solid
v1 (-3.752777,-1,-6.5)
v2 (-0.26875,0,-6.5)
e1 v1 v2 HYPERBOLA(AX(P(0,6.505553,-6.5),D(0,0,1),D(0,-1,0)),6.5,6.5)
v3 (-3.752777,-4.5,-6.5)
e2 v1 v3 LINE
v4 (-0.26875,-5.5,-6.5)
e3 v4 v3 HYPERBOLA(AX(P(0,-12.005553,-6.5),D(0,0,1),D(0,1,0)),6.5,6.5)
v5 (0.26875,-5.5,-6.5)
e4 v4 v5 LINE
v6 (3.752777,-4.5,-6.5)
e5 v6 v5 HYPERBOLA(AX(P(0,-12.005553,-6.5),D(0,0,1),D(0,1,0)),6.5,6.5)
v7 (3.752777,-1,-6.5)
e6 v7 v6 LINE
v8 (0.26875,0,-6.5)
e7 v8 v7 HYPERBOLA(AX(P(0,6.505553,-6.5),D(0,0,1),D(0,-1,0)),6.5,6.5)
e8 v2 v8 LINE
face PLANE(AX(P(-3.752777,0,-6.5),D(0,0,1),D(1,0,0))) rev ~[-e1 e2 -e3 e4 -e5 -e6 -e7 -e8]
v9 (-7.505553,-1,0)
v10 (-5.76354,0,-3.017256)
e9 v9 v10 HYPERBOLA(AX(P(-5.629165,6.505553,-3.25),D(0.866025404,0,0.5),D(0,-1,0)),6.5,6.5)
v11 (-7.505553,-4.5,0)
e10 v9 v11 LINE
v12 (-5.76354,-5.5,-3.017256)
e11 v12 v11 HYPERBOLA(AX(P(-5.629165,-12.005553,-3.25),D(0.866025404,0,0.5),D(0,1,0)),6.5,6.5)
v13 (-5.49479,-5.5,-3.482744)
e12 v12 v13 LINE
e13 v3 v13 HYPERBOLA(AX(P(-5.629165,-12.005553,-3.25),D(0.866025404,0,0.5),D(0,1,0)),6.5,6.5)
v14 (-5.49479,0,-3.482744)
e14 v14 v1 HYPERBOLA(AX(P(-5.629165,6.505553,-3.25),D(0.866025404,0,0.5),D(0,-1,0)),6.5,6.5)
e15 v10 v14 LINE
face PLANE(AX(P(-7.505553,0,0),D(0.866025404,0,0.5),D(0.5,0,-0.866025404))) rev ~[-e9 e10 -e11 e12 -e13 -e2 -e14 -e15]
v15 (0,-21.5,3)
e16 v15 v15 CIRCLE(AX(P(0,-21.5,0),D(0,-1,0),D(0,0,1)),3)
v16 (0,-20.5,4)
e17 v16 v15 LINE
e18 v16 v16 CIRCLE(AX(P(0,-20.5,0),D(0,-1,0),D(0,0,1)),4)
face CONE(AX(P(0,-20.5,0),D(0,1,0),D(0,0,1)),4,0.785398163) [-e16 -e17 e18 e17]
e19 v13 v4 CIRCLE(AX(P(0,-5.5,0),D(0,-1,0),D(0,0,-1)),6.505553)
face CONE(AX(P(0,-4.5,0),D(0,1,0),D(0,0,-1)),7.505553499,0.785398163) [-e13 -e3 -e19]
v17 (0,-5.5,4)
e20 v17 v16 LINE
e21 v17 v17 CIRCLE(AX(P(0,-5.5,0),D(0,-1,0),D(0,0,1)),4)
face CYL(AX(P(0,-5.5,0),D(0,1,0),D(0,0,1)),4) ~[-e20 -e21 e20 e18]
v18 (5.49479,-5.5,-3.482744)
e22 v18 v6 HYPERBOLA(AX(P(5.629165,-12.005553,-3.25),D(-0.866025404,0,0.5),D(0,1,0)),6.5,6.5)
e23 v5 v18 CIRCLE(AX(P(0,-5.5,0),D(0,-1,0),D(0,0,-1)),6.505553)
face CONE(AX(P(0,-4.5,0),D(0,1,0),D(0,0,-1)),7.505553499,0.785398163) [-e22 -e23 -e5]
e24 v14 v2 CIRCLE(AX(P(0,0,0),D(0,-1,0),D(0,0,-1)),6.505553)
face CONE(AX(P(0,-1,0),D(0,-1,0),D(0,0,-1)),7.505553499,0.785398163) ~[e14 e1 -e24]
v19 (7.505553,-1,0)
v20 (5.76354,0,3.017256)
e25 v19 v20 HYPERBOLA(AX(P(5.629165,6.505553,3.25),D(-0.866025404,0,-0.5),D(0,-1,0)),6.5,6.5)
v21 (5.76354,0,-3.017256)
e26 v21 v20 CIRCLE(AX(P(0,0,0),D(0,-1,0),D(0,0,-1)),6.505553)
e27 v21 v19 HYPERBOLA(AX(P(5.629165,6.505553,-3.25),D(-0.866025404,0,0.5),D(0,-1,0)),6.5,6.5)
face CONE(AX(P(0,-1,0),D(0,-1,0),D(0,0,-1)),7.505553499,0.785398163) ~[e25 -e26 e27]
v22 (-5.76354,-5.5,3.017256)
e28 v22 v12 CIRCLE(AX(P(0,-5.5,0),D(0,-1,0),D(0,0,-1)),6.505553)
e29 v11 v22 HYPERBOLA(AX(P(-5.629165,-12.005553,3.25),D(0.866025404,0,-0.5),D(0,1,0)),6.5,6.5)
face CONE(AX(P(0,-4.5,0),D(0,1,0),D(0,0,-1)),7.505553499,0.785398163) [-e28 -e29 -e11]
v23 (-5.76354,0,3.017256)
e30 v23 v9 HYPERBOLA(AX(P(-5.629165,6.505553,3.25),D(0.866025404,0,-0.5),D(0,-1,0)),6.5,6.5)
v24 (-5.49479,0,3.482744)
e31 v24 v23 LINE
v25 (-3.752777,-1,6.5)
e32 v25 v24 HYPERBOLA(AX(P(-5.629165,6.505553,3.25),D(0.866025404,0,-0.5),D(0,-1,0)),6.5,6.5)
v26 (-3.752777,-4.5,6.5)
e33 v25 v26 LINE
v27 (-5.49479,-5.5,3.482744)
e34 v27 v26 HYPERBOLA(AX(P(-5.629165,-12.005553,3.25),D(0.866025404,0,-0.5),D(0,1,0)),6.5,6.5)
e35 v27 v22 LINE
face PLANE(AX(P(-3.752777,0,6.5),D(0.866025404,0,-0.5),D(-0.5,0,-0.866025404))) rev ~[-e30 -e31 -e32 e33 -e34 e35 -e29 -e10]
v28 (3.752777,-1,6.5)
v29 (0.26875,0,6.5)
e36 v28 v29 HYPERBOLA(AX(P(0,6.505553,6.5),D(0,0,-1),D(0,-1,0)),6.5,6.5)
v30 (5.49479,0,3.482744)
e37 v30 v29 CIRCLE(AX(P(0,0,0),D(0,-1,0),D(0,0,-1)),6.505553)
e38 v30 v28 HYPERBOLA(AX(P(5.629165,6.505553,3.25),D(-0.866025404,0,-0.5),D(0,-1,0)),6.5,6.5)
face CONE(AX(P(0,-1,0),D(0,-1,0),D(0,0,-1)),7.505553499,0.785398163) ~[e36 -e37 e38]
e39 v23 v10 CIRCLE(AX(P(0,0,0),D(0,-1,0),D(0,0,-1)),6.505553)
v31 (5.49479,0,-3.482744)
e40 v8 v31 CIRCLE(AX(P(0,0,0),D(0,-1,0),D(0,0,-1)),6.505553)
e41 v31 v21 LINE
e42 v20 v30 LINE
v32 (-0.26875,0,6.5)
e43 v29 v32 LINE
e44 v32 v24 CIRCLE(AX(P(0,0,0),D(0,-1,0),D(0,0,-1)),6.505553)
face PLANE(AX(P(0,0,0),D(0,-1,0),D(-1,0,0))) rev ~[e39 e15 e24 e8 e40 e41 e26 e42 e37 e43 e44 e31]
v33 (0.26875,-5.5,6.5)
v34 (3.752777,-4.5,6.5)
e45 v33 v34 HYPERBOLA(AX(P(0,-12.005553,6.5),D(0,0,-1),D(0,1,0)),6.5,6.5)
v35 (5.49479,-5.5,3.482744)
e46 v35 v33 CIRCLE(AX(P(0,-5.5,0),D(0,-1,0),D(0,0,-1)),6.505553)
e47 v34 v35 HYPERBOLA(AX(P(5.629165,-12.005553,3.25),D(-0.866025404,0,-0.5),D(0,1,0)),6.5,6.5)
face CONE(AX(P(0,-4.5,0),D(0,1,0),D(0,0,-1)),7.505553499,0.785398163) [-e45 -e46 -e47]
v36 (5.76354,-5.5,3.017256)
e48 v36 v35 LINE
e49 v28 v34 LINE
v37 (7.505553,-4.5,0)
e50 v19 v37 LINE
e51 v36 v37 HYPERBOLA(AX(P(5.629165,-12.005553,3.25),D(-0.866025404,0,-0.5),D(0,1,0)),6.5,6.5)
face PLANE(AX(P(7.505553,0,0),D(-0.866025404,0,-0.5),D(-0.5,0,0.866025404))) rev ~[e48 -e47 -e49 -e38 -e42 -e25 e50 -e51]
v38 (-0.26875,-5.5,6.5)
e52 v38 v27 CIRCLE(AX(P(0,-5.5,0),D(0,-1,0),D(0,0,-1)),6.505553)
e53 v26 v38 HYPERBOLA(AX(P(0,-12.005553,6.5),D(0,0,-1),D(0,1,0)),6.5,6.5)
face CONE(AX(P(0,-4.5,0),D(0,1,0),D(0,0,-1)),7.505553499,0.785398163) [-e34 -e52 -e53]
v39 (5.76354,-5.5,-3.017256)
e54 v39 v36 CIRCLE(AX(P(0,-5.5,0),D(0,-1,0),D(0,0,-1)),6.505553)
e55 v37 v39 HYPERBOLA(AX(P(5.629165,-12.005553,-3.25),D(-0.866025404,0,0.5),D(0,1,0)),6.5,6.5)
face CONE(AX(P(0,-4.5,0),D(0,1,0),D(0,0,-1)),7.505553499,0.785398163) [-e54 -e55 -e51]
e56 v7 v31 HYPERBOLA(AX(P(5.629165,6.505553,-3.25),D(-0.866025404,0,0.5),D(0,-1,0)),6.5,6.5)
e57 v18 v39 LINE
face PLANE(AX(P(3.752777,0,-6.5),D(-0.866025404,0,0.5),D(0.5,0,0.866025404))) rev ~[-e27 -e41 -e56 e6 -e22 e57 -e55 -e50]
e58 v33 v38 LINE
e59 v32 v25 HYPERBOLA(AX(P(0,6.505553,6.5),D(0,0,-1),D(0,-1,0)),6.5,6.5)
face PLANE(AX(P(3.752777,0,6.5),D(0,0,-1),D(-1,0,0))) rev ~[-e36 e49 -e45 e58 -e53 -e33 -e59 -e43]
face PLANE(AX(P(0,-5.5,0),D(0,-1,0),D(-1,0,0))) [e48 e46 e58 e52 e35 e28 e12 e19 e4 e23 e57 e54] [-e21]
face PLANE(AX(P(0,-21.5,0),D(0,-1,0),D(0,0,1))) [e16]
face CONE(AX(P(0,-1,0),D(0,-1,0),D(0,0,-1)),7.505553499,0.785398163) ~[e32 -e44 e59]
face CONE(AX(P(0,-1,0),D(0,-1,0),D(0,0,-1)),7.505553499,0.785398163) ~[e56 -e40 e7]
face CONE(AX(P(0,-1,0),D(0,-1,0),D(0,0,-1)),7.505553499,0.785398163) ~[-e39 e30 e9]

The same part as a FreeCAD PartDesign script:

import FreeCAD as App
import Part
import Sketcher
Q = App.Units.Quantity


def edges_at(feature, points):
    """Names of the edges that pass closest to the given points."""
    edges = feature.Shape.Edges
    near = lambda p: min(range(len(edges)), key=lambda i: edges[i].distToShape(Part.Vertex(*p))[0])
    return sorted({f"Edge{near(p) + 1}" for p in points})

doc = App.newDocument("Part")
body = doc.addObject("PartDesign::Body", "Body")

# Sketch on XZ plane
sketch1 = body.newObject("Sketcher::SketchObject", "Sketch")
sketch1.AttachmentSupport = (doc.getObject("XZ_Plane"), [""])
sketch1.MapMode = "FlatFace"
sketch1.addGeometry([
    Part.LineSegment(App.Vector(3.752777, -6.5, 0), App.Vector(-3.752777, -6.5, 0)),  # 0
    Part.LineSegment(App.Vector(-3.752777, -6.5, 0), App.Vector(-7.505553, 0, 0)),  # 1
    Part.LineSegment(App.Vector(-7.505553, 0, 0), App.Vector(-3.752777, 6.5, 0)),  # 2
    Part.LineSegment(App.Vector(-3.752777, 6.5, 0), App.Vector(3.752777, 6.5, 0)),  # 3
    Part.LineSegment(App.Vector(3.752777, 6.5, 0), App.Vector(7.505553, 0, 0)),  # 4
    Part.LineSegment(App.Vector(7.505553, 0, 0), App.Vector(3.752777, -6.5, 0)),  # 5
], False)
sketch1.addConstraint([
    Sketcher.Constraint("Coincident", 0, 2, 1, 1),
    Sketcher.Constraint("Coincident", 1, 2, 2, 1),
    Sketcher.Constraint("Coincident", 2, 2, 3, 1),
    Sketcher.Constraint("Coincident", 3, 2, 4, 1),
    Sketcher.Constraint("Coincident", 4, 2, 5, 1),
    Sketcher.Constraint("Coincident", 5, 2, 0, 1),
    Sketcher.Constraint("Horizontal", 0),
    Sketcher.Constraint("Horizontal", 3),
    Sketcher.Constraint("Symmetric", 0, 2, 3, 2, -1, 1),
    Sketcher.Constraint("Symmetric", 1, 2, 4, 2, -1, 1),
    Sketcher.Constraint("PointOnObject", 1, 2, -1),
    Sketcher.Constraint("Parallel", 2, 5),
    Sketcher.Constraint("Vertical", 0, 2, 2, 2),
    Sketcher.Constraint("Angle", 1, Q("120 deg")),
    Sketcher.Constraint("DistanceY", 0, 2, 2, 2, 13.0),
    Sketcher.Constraint("DistanceX", 0, 2, 0, 1, 7.505554),
])
pad1 = body.newObject("PartDesign::Pad", "Pad")
pad1.Profile = sketch1
pad1.Length = 5.5

# Sketch on XZ plane
sketch2 = body.newObject("Sketcher::SketchObject", "Sketch001")
sketch2.AttachmentSupport = (doc.getObject("XZ_Plane"), [""])
sketch2.MapMode = "FlatFace"
sketch2.AttachmentOffset = App.Placement(App.Vector(0, 0, 5.5), App.Rotation())
sketch2.addGeometry(Part.Circle(App.Vector(0, 0, 0), App.Vector(0, 0, 1), 4), False)
sketch2.addConstraint([
    Sketcher.Constraint("Coincident", 0, 3, -1, 1),
    Sketcher.Constraint("Diameter", 0, 8.0),
])
pad2 = body.newObject("PartDesign::Pad", "Pad001")
pad2.Profile = sketch2
pad2.Length = 16
doc.recompute()

chamfer = body.newObject("PartDesign::Chamfer", "Chamfer")
chamfer.Base = (pad2, edges_at(pad2, [(0, -21.5, -4)]))
chamfer.Size = 1

# Sketch on XY plane
sketch3 = body.newObject("Sketcher::SketchObject", "Sketch002")
sketch3.AttachmentSupport = (doc.getObject("XY_Plane"), [""])
sketch3.MapMode = "FlatFace"
sketch3.addGeometry([
    Part.LineSegment(App.Vector(-7.505553, -1, 0), App.Vector(-6.505553, 0, 0)),  # 0
    Part.LineSegment(App.Vector(-6.505553, 0, 0), App.Vector(-7.505553, 0, 0)),  # 1
    Part.LineSegment(App.Vector(-7.505553, 0, 0), App.Vector(-7.505553, -1, 0)),  # 2
    Part.LineSegment(App.Vector(-6.505553, -5.5, 0), App.Vector(-7.505553, -4.5, 0)),  # 3
    Part.LineSegment(App.Vector(-7.505553, -4.5, 0), App.Vector(-7.505553, -5.5, 0)),  # 4
    Part.LineSegment(App.Vector(-7.505553, -5.5, 0), App.Vector(-6.505553, -5.5, 0)),  # 5
], False)
sketch3.addConstraint([
    Sketcher.Constraint("Coincident", 0, 2, 1, 1),
    Sketcher.Constraint("Coincident", 1, 2, 2, 1),
    Sketcher.Constraint("Coincident", 2, 2, 0, 1),
    Sketcher.Constraint("Coincident", 3, 2, 4, 1),
    Sketcher.Constraint("Coincident", 4, 2, 5, 1),
    Sketcher.Constraint("Coincident", 5, 2, 3, 1),
    Sketcher.Constraint("Horizontal", 1),
    Sketcher.Constraint("Vertical", 2),
    Sketcher.Constraint("Vertical", 4),
    Sketcher.Constraint("Horizontal", 5),
    Sketcher.Constraint("PointOnObject", 0, 2, -1),
    Sketcher.Constraint("Perpendicular", 0, 3),
    Sketcher.Constraint("Vertical", 2, 2, 3, 2),
    Sketcher.Constraint("Vertical", 0, 2, 5, 2),
    Sketcher.Constraint("Equal", 5, 2),
    Sketcher.Constraint("DistanceX", 1, 2, 1, 1, 1.0),
    Sketcher.Constraint("DistanceY", 3, 2, -1, 1, 4.5),
    Sketcher.Constraint("DistanceX", 0, 2, -1, 1, 6.505553),
])
groove = body.newObject("PartDesign::Groove", "Groove")
groove.Profile = sketch3
groove.ReferenceAxis = (sketch3, ["V_Axis"])
groove.Angle = 360

doc.recompute()
